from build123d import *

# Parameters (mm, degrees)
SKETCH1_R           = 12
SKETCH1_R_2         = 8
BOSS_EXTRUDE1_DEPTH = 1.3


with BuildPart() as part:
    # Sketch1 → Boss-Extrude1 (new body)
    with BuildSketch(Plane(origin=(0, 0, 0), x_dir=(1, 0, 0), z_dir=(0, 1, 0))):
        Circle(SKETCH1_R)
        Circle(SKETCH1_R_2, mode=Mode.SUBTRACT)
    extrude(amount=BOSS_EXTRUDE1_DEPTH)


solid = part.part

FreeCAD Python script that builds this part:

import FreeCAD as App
import Part
import Sketcher

V = App.Vector

doc = App.newDocument("Part")
params = doc.addObject("Spreadsheet::Sheet", "Params")
for row, (alias, value) in enumerate([
    ("sketch1_diameter", "24 mm"),
    ("sketch1_diameter2", "16 mm"),
    ("pad1_length", "1.3 mm"),
], start=1):
    params.set(f"A{row}", alias)
    params.set(f"B{row}", "=" + value)
    params.setAlias(f"B{row}", alias)

body = doc.addObject("PartDesign::Body", "Body")

# Sketch on XZ plane
sketch1 = body.newObject("Sketcher::SketchObject", "Sketch")
sketch1.AttachmentSupport = (doc.getObject("XZ_Plane"), [""])
sketch1.MapMode = "FlatFace"
sketch1.addGeometry([
    Part.Circle(V(0, 0, 0), V(0, 0, 1), 12),
    Part.Circle(V(0, 0, 0), V(0, 0, 1), 8),
], False)
sketch1.addConstraint([
    Sketcher.Constraint("Coincident", 0, 3, -1, 1),
    Sketcher.Constraint("Coincident", 1, 3, -1, 1),
    Sketcher.Constraint("Diameter", 0, 24.0),
    Sketcher.Constraint("Diameter", 1, 16.0),
])
sketch1.setExpression("Constraints[2]", "Params.sketch1_diameter")
sketch1.setExpression("Constraints[3]", "Params.sketch1_diameter2")
pad1 = body.newObject("PartDesign::Pad", "Pad")
pad1.Profile = sketch1
pad1.setExpression("Length", "Params.pad1_length")
pad1.Reversed = True

doc.recompute()
